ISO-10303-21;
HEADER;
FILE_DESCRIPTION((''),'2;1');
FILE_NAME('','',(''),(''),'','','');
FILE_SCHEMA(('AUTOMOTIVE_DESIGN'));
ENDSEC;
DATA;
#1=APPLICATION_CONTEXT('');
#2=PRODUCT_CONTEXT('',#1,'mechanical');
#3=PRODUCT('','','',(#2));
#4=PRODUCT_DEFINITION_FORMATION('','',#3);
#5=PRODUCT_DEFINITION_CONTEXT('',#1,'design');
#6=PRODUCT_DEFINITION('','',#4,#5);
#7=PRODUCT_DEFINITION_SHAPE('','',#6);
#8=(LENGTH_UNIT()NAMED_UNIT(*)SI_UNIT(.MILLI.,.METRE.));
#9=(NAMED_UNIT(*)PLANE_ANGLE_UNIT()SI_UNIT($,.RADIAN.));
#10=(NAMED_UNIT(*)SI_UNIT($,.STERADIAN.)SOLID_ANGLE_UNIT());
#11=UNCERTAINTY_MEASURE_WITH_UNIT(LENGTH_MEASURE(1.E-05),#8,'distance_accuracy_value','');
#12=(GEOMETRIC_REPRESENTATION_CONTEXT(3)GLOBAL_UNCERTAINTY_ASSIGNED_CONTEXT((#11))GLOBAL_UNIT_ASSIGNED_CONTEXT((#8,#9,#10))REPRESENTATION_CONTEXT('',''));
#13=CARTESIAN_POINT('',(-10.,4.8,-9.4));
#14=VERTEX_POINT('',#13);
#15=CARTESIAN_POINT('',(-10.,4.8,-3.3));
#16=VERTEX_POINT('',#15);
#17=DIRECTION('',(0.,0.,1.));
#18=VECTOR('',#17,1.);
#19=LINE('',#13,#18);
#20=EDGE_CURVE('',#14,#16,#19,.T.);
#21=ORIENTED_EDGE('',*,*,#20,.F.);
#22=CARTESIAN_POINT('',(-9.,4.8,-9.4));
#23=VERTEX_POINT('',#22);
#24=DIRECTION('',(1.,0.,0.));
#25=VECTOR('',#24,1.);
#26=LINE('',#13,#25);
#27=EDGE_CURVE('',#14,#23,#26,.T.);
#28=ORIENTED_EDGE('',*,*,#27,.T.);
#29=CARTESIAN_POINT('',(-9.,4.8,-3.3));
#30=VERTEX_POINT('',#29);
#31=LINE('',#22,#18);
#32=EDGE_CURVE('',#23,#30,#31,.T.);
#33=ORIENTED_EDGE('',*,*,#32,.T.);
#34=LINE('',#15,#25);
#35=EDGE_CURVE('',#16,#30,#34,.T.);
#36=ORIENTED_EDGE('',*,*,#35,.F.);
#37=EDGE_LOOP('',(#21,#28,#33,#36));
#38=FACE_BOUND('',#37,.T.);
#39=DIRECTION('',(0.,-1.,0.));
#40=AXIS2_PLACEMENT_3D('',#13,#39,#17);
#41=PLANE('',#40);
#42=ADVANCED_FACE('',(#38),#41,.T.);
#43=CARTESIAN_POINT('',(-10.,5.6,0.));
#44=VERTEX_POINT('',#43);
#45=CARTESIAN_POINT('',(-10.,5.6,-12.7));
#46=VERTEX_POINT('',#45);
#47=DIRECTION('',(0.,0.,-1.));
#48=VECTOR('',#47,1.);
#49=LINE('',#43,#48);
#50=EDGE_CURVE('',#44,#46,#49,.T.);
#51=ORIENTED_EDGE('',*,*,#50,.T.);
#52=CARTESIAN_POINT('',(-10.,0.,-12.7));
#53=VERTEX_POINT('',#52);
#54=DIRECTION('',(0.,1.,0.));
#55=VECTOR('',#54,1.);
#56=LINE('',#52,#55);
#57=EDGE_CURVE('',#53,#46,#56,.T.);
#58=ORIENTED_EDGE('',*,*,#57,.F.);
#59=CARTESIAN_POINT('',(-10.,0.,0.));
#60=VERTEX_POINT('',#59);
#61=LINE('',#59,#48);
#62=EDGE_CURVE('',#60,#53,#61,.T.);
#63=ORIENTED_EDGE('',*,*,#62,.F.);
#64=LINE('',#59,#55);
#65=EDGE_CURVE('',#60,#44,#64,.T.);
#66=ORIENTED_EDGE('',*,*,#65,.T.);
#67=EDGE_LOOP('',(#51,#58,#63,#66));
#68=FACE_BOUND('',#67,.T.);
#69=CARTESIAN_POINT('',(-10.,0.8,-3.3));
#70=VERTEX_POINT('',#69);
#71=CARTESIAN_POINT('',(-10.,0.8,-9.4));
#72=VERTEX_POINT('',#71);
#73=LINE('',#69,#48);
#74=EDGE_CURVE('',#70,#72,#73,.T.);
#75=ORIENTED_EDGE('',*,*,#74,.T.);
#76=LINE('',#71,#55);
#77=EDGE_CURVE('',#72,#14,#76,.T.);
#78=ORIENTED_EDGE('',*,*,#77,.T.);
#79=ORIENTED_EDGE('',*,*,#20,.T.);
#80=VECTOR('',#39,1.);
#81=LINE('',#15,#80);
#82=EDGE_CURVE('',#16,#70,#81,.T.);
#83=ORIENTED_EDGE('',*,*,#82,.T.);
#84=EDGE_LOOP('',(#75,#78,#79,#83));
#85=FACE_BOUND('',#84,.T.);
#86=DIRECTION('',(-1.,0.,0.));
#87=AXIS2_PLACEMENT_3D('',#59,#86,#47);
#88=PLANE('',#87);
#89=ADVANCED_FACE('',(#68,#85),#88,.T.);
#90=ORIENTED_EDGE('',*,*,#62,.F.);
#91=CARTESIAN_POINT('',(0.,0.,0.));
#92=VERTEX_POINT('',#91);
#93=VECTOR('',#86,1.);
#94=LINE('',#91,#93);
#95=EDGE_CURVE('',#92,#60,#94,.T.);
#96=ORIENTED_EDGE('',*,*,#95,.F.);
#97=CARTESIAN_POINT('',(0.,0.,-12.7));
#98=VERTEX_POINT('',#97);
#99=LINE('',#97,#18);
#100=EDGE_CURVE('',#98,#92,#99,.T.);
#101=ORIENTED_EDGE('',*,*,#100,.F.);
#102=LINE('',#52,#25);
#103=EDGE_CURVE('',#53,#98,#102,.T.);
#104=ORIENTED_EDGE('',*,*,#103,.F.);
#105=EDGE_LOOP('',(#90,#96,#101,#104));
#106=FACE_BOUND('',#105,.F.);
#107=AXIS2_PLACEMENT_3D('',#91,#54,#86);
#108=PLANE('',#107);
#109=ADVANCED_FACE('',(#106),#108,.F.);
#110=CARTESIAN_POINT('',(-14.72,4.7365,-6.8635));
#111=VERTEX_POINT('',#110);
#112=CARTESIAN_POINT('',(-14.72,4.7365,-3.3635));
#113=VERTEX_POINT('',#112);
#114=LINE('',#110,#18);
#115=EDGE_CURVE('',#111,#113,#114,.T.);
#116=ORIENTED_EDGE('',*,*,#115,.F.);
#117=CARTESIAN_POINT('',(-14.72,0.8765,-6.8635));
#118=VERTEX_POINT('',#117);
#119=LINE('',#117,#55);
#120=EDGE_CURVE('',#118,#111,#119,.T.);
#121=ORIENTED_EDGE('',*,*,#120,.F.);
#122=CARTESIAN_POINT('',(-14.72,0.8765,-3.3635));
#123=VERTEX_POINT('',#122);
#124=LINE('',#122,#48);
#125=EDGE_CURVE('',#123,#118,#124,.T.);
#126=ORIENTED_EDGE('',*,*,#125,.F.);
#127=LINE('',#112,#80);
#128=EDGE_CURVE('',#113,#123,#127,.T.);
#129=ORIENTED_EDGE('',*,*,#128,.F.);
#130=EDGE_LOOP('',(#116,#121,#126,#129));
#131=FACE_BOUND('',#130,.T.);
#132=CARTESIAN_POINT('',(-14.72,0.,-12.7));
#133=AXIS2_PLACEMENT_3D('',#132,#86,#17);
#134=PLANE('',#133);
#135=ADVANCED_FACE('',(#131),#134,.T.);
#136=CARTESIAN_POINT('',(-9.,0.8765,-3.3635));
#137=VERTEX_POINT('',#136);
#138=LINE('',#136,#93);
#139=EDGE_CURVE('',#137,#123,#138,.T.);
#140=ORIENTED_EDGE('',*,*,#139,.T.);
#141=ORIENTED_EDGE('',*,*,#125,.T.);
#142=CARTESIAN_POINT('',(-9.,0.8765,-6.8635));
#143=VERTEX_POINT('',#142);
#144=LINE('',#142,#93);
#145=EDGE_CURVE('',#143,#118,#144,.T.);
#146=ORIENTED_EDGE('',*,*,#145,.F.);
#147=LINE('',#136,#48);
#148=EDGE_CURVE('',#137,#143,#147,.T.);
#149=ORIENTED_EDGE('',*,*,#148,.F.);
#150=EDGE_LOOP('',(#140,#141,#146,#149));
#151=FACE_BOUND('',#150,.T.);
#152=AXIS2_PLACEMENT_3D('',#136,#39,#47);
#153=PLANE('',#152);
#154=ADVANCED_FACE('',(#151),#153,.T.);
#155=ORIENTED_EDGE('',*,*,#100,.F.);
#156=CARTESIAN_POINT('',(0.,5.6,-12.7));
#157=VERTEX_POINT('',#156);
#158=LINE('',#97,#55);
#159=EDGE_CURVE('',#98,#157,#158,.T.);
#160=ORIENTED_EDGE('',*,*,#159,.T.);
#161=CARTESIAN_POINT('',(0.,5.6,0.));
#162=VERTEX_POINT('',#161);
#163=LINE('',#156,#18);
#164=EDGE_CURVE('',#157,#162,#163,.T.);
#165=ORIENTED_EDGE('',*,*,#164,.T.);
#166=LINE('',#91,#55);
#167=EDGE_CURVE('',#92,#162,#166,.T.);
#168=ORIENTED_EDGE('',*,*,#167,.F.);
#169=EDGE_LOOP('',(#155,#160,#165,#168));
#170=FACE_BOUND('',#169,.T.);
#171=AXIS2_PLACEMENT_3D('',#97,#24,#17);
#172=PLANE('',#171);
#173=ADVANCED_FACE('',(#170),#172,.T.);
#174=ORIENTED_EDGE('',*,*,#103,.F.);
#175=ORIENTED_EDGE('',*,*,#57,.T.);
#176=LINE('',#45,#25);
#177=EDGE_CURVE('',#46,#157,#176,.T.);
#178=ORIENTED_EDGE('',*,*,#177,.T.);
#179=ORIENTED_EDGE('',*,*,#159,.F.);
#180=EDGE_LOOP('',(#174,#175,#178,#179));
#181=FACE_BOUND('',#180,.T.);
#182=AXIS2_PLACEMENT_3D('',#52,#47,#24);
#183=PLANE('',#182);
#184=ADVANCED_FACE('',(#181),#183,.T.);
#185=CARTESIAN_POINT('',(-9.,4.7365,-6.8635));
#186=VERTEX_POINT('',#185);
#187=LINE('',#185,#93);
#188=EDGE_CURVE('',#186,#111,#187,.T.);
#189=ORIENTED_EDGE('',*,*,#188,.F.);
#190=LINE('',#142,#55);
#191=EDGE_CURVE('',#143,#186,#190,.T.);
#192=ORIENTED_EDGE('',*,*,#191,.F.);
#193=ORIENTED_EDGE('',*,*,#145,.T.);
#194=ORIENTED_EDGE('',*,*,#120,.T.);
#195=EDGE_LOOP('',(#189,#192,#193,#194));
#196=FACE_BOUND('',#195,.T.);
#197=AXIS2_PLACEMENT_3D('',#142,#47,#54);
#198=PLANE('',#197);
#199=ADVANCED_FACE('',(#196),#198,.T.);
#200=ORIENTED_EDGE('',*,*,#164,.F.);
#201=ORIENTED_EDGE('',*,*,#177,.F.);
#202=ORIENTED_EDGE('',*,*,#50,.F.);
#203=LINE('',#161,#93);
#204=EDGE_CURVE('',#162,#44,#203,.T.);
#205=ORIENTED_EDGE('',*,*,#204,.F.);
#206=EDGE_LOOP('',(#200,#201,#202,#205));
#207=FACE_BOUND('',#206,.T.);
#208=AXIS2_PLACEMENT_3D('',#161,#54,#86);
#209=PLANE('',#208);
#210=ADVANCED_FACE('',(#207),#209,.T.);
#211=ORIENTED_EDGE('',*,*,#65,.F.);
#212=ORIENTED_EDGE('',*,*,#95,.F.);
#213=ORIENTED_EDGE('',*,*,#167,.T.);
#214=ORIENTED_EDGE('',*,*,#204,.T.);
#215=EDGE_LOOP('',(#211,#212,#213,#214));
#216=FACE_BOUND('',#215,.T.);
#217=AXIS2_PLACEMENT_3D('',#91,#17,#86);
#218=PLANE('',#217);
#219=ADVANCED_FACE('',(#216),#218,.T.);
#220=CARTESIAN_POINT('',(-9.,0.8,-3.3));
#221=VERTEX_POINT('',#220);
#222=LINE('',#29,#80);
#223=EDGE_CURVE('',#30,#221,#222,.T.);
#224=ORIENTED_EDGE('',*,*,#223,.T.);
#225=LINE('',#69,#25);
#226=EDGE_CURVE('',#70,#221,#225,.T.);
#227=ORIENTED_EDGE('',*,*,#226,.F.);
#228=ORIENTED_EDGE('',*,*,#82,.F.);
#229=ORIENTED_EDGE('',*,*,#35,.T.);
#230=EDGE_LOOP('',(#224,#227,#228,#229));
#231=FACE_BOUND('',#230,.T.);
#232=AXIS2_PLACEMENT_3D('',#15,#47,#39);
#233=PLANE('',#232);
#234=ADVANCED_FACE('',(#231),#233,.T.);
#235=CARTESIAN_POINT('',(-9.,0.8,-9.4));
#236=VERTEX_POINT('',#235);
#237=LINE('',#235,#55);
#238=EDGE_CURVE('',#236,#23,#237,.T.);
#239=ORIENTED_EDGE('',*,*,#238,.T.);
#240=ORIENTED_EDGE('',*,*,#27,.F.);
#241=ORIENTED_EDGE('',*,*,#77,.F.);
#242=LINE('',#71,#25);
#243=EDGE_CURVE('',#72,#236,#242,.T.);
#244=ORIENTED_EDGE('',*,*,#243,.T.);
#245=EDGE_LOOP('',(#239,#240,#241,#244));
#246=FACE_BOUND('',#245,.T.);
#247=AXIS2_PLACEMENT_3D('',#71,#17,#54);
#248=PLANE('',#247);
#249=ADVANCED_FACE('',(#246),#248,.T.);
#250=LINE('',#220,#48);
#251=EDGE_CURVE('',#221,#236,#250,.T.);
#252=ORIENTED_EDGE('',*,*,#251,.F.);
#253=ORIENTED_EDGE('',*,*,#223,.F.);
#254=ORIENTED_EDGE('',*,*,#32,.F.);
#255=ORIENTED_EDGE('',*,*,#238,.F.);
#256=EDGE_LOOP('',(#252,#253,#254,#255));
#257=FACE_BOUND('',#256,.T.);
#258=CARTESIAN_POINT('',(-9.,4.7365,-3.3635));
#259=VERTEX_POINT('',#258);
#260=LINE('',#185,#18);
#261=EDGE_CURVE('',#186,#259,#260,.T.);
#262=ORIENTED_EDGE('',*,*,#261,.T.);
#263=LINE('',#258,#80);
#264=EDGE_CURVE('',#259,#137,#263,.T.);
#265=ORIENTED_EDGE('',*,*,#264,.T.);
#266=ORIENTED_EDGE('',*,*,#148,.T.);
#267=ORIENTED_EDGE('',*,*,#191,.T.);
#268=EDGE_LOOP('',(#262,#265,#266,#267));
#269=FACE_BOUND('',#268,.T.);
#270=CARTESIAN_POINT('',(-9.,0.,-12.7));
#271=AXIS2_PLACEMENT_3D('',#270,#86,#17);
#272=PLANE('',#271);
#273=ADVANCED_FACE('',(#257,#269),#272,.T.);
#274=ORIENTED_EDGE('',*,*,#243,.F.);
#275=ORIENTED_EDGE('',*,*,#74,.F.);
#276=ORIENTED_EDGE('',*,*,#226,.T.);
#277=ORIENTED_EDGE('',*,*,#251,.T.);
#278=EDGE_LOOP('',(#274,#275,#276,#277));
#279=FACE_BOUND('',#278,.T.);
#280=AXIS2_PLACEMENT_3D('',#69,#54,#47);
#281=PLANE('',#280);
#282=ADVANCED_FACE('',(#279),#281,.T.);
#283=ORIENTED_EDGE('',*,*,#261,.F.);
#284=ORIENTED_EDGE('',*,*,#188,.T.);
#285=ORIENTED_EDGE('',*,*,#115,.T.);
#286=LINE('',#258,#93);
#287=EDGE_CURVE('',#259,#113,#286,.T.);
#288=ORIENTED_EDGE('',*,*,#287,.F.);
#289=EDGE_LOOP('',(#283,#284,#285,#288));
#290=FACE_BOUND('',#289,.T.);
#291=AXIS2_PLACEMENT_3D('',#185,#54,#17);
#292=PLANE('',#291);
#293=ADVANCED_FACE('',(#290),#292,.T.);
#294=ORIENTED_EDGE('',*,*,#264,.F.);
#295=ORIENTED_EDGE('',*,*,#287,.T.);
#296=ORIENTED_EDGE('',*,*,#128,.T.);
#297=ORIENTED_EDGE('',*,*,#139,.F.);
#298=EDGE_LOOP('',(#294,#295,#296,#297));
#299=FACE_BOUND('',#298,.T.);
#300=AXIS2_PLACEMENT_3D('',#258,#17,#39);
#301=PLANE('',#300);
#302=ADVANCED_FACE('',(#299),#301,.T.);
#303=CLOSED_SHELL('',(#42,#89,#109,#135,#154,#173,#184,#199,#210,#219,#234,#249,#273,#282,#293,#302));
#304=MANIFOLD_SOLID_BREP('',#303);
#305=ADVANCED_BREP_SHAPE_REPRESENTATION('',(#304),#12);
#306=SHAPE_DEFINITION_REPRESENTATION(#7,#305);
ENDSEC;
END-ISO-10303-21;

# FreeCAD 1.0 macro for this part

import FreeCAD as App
import Part
import Sketcher


def add_polygon(sketch, points):
    """Adds a closed chain of lines whose ends are joined by coincident constraints."""
    first, n = sketch.GeometryCount, len(points)
    for a, b in zip(points, points[1:] + points[:1]):
        sketch.addGeometry(Part.LineSegment(App.Vector(*a, 0), App.Vector(*b, 0)), False)
    for i in range(n):
        sketch.addConstraint(Sketcher.Constraint("Coincident", first + i, 2, first + (i + 1) % n, 1))

doc = App.newDocument("Part")
body = doc.addObject("PartDesign::Body", "Body")

sketch1 = body.newObject("Sketcher::SketchObject", "Sketch")
sketch1.AttachmentSupport = (doc.getObject("XZ_Plane"), [""])
sketch1.MapMode = "FlatFace"
add_polygon(sketch1, [(-10, 0), (0, 0), (0, -13), (-10, -13)])
sketch1.addConstraint([
    Sketcher.Constraint("Horizontal", 0),
    Sketcher.Constraint("Vertical", 1),
    Sketcher.Constraint("Horizontal", 2),
    Sketcher.Constraint("Vertical", 3),
    Sketcher.Constraint("Coincident", 0, 2, -1, 1),
    Sketcher.Constraint("DistanceX", 0, 1, 0, 2, 10.0),
    Sketcher.Constraint("DistanceY", 1, 2, 1, 1, 12.7),
])
pad1 = body.newObject("PartDesign::Pad", "Pad")
pad1.Profile = sketch1
pad1.Length = 5.6
pad1.Reversed = True

sketch2 = body.newObject("Sketcher::SketchObject", "Sketch001")
sketch2.AttachmentSupport = (doc.getObject("YZ_Plane"), [""])
sketch2.MapMode = "FlatFace"
sketch2.AttachmentOffset = App.Placement(App.Vector(0, 0, -10), App.Rotation())
add_polygon(sketch2, [(4.8, -3.3), (4.8, -9.4), (0.8, -9.4), (0.8, -3.3)])
sketch2.addConstraint([
    Sketcher.Constraint("Vertical", 0),
    Sketcher.Constraint("Horizontal", 1),
    Sketcher.Constraint("Vertical", 2),
    Sketcher.Constraint("Horizontal", 3),
    Sketcher.Constraint("DistanceX", 1, 2, 1, 1, 4.0),
    Sketcher.Constraint("DistanceY", 0, 2, 0, 1, 6.1),
    Sketcher.Constraint("DistanceX", -1, 1, 0, 2, 4.8),
    Sketcher.Constraint("DistanceY", 0, 2, -1, 1, 9.4),
])
pocket1 = body.newObject("PartDesign::Pocket", "Pocket")
pocket1.Profile = sketch2
pocket1.Length = 1
pocket1.Reversed = True

sketch3 = body.newObject("Sketcher::SketchObject", "Sketch002")
sketch3.AttachmentSupport = (doc.getObject("YZ_Plane"), [""])
sketch3.MapMode = "FlatFace"
sketch3.AttachmentOffset = App.Placement(App.Vector(0, 0, -9), App.Rotation())
add_polygon(sketch3, [(4.7, -3.4), (4.7, -6.9), (0.9, -6.9), (0.9, -3.4)])
sketch3.addConstraint([
    Sketcher.Constraint("Vertical", 0),
    Sketcher.Constraint("Horizontal", 1),
    Sketcher.Constraint("Vertical", 2),
    Sketcher.Constraint("Horizontal", 3),
    Sketcher.Constraint("DistanceY", 0, 2, 0, 1, 3.5),
    Sketcher.Constraint("DistanceX", 1, 2, 1, 1, 3.86),
    Sketcher.Constraint("DistanceX", -1, 1, 0, 2, 4.7365),
    Sketcher.Constraint("DistanceY", 0, 2, -1, 1, 6.8635),
])
pad2 = body.newObject("PartDesign::Pad", "Pad001")
pad2.Profile = sketch3
pad2.Length = 5.72
pad2.Reversed = True

doc.recompute()
